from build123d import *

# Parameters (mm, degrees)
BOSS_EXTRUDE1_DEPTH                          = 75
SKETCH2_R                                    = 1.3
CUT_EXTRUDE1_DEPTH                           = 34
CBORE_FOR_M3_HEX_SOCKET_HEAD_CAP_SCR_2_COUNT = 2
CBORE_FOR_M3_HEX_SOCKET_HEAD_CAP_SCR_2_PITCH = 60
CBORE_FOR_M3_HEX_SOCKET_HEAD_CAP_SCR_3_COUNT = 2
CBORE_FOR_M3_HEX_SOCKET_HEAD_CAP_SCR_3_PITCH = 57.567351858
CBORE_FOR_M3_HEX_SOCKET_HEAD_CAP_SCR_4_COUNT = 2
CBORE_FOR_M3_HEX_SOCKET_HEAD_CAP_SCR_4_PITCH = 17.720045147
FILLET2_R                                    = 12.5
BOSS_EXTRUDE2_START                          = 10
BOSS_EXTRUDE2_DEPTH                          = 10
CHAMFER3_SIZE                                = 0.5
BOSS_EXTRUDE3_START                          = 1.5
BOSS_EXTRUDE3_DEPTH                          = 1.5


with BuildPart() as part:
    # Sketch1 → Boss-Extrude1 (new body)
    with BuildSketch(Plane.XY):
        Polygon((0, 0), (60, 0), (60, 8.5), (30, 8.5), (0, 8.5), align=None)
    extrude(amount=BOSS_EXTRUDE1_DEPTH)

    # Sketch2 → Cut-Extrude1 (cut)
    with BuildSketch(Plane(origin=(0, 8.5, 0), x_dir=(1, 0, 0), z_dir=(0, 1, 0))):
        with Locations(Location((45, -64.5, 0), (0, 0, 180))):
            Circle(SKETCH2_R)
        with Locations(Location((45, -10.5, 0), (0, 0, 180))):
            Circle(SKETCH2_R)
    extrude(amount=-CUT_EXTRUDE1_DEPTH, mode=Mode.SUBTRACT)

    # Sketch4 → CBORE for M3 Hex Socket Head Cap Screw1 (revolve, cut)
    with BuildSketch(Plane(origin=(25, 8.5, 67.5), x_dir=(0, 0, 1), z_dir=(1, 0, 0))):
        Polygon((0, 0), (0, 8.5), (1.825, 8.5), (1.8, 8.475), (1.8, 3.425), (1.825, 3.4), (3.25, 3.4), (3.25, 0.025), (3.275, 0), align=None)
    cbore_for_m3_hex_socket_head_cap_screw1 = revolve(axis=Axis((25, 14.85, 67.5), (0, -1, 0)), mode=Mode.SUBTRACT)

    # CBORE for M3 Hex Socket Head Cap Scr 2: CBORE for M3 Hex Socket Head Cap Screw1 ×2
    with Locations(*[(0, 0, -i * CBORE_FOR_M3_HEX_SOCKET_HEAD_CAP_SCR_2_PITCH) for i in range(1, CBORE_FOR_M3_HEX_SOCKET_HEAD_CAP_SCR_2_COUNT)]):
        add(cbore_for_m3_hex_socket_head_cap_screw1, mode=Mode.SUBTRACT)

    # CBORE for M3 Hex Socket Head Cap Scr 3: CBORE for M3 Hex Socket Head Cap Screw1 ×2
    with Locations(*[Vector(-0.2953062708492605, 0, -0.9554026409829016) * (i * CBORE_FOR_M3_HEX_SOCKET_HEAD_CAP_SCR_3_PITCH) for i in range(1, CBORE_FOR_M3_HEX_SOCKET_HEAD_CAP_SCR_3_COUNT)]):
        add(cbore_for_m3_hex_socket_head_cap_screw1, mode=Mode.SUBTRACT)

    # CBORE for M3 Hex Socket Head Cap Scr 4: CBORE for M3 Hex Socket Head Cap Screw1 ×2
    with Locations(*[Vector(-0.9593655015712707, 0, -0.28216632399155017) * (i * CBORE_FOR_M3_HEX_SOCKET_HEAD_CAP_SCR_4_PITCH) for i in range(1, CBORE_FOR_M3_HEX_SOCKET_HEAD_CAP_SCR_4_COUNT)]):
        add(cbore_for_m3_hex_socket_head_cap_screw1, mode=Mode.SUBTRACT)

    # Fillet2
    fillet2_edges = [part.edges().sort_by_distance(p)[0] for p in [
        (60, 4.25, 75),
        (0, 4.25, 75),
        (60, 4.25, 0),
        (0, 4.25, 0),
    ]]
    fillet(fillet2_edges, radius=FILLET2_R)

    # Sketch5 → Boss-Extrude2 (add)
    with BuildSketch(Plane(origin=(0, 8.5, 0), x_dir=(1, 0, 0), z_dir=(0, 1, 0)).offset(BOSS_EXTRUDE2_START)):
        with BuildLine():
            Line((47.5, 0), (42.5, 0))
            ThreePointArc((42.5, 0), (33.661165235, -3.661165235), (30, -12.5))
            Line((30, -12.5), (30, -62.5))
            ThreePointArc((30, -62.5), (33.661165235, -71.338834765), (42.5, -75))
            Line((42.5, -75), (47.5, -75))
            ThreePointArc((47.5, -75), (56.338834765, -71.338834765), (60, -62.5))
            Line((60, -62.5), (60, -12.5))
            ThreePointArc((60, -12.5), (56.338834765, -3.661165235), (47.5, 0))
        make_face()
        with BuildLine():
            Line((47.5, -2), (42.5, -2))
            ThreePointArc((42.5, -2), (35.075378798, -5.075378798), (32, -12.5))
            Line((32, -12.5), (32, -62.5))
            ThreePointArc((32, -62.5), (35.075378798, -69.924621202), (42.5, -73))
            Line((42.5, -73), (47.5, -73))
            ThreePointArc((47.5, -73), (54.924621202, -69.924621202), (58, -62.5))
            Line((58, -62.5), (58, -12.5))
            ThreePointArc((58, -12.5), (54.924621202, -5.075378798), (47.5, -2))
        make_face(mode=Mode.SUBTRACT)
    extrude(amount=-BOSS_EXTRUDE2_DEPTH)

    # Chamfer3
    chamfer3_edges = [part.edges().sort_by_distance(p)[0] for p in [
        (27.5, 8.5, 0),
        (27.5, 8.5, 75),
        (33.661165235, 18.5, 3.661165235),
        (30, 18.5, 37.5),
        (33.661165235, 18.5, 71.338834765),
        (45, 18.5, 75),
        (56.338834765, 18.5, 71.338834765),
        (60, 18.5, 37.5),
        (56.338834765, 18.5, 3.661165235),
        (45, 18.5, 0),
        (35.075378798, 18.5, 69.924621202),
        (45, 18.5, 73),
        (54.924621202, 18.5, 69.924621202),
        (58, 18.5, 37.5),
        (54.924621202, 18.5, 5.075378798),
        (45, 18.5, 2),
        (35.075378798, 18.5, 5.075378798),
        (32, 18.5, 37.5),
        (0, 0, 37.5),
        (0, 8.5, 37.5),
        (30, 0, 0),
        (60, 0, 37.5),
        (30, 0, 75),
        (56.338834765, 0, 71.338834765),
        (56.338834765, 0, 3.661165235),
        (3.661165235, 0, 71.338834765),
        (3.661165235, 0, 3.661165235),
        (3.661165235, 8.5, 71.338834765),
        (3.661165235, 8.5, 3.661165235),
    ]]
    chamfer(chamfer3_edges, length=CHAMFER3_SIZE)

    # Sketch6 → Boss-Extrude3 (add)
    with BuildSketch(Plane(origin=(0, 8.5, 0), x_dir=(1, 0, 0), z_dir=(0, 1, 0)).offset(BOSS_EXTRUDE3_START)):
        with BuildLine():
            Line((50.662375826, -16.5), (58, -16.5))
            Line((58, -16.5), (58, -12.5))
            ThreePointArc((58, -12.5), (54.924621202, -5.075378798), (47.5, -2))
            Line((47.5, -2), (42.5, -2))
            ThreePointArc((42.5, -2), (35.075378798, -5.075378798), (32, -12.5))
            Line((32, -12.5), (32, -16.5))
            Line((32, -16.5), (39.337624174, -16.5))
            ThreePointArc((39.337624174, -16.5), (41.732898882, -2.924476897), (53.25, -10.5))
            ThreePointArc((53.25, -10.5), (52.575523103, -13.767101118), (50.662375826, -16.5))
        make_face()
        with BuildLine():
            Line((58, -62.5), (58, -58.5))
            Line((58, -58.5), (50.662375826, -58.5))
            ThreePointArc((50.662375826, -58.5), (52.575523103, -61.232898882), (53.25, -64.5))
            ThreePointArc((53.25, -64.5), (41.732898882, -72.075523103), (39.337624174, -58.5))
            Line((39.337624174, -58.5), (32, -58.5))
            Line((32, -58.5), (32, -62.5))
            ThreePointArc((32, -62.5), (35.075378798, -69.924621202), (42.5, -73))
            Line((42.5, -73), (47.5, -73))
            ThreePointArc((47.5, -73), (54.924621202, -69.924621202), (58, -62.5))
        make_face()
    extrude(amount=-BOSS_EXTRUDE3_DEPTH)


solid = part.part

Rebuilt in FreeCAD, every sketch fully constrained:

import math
import FreeCAD as App
import Part
import Sketcher

V = App.Vector
Q = App.Units.Quantity


def edges_at(feature, points):
    """Names of the edges that pass closest to the given points."""
    edges = feature.Shape.Edges
    near = lambda p: min(range(len(edges)), key=lambda i: edges[i].distToShape(Part.Vertex(*p))[0])
    return sorted({f"Edge{near(p) + 1}" for p in points})

doc = App.newDocument("Part")
body = doc.addObject("PartDesign::Body", "Body")

# Sketch on XY plane
sketch1 = body.newObject("Sketcher::SketchObject", "Sketch")
sketch1.AttachmentSupport = (doc.getObject("XY_Plane"), [""])
sketch1.MapMode = "FlatFace"
sketch1.addGeometry([
    Part.LineSegment(V(0, 0, 0), V(60, 0, 0)),
    Part.LineSegment(V(60, 0, 0), V(60, 8, 0)),
    Part.LineSegment(V(60, 8, 0), V(0, 8, 0)),
    Part.LineSegment(V(0, 8, 0), V(0, 0, 0)),
], False)
sketch1.addConstraint([
    Sketcher.Constraint("Coincident", 0, 2, 1, 1),
    Sketcher.Constraint("Coincident", 1, 2, 2, 1),
    Sketcher.Constraint("Coincident", 2, 2, 3, 1),
    Sketcher.Constraint("Coincident", 3, 2, 0, 1),
    Sketcher.Constraint("Horizontal", 0),
    Sketcher.Constraint("Vertical", 1),
    Sketcher.Constraint("Horizontal", 2),
    Sketcher.Constraint("Vertical", 3),
    Sketcher.Constraint("Coincident", 3, 2, -1, 1),
    Sketcher.Constraint("DistanceX", 0, 1, 0, 2, Q("60 mm")),
    Sketcher.Constraint("DistanceY", 1, 1, 1, 2, Q("8.5 mm")),
])
pad1 = body.newObject("PartDesign::Pad", "Pad")
pad1.Profile = sketch1
pad1.Length = 75

# Sketch on XZ plane
sketch2 = body.newObject("Sketcher::SketchObject", "Sketch001")
sketch2.AttachmentSupport = (doc.getObject("XZ_Plane"), [""])
sketch2.MapMode = "FlatFace"
sketch2.AttachmentOffset = App.Placement(V(0, 0, -8.5), App.Rotation())
sketch2.addGeometry([
    Part.Circle(V(45, 64.5, 0), V(0, 0, 1), 1.3),
    Part.Circle(V(45, 10.5, 0), V(0, 0, 1), 1.3),
], False)
sketch2.addConstraint([
    Sketcher.Constraint("Equal", 0, 1),
    Sketcher.Constraint("Vertical", 0, 3, 1, 3),
    Sketcher.Constraint("Diameter", 0, Q("2.6 mm")),
    Sketcher.Constraint("DistanceX", -1, 1, 0, 3, Q("45 mm")),
    Sketcher.Constraint("DistanceY", 1, 3, 0, 3, Q("54 mm")),
    Sketcher.Constraint("DistanceY", -1, 1, 0, 3, Q("64.5 mm")),
])
pocket1 = body.newObject("PartDesign::Pocket", "Pocket")
pocket1.Profile = sketch2
pocket1.Length = 34
pocket1.Reversed = True

# Sketch on YZ plane
sketch3 = body.newObject("Sketcher::SketchObject", "Sketch002")
sketch3.AttachmentSupport = (doc.getObject("YZ_Plane"), [""])
sketch3.MapMode = "FlatFace"
sketch3.AttachmentOffset = App.Placement(V(0, 0, 25), App.Rotation())
sketch3.addGeometry([
    Part.LineSegment(V(0, 67.5, 0), V(8.5, 67.5, 0)),  # 0
    Part.LineSegment(V(8.5, 67.5, 0), V(8.5, 70.775, 0)),  # 1
    Part.LineSegment(V(8.5, 70.775, 0), V(8.475, 70.75, 0)),  # 2
    Part.LineSegment(V(8.475, 70.75, 0), V(5.1, 70.75, 0)),  # 3
    Part.LineSegment(V(5.1, 70.75, 0), V(5.1, 69.325, 0)),  # 4
    Part.LineSegment(V(5.1, 69.325, 0), V(5.075, 69.3, 0)),  # 5
    Part.LineSegment(V(5.075, 69.3, 0), V(0.025, 69.3, 0)),  # 6
    Part.LineSegment(V(0.025, 69.3, 0), V(0, 69.325, 0)),  # 7
    Part.LineSegment(V(0, 69.325, 0), V(0, 67.5, 0)),  # 8
], False)
sketch3.addGeometry(Part.LineSegment(V(8.5, 67.5, 0), V(0, 67.5, 0)), True)  # axis
sketch3.addConstraint([
    Sketcher.Constraint("Coincident", 0, 2, 1, 1),
    Sketcher.Constraint("Coincident", 1, 2, 2, 1),
    Sketcher.Constraint("Coincident", 2, 2, 3, 1),
    Sketcher.Constraint("Coincident", 3, 2, 4, 1),
    Sketcher.Constraint("Coincident", 4, 2, 5, 1),
    Sketcher.Constraint("Coincident", 5, 2, 6, 1),
    Sketcher.Constraint("Coincident", 6, 2, 7, 1),
    Sketcher.Constraint("Coincident", 7, 2, 8, 1),
    Sketcher.Constraint("Coincident", 8, 2, 0, 1),
    Sketcher.Constraint("Horizontal", 0),
    Sketcher.Constraint("Vertical", 1),
    Sketcher.Constraint("Horizontal", 3),
    Sketcher.Constraint("Vertical", 4),
    Sketcher.Constraint("Horizontal", 6),
    Sketcher.Constraint("Vertical", 8),
    Sketcher.Constraint("Horizontal", 9),
    Sketcher.Constraint("Coincident", 9, 1, 0, 2),
    Sketcher.Constraint("PointOnObject", 7, 2, -2),
    Sketcher.Constraint("PointOnObject", 9, 2, -2),
    Sketcher.Constraint("Parallel", 2, 5),
    Sketcher.Constraint("Perpendicular", 5, 7),
    Sketcher.Constraint("Horizontal", 4, 2, 7, 2),
    Sketcher.Constraint("Equal", 2, 5),
    Sketcher.Constraint("Equal", 5, 7),
    Sketcher.Constraint("DistanceX", 0, 1, 0, 2, Q("8.5 mm")),
    Sketcher.Constraint("DistanceX", 6, 2, 6, 1, Q("5.05 mm")),
    Sketcher.Constraint("DistanceY", -1, 1, 0, 2, Q("67.5 mm")),
    Sketcher.Constraint("DistanceX", -1, 1, 3, 2, Q("5.1 mm")),
    Sketcher.Constraint("DistanceY", -1, 1, 5, 2, Q("69.3 mm")),
    Sketcher.Constraint("DistanceY", 1, 1, 1, 2, Q("3.275 mm")),
])
groove = body.newObject("PartDesign::Groove", "Groove")
groove.Profile = sketch3
groove.ReferenceAxis = (sketch3, ["Axis0"])
groove.Angle = 360
doc.recompute()

linearpattern = body.newObject("PartDesign::LinearPattern", "LinearPattern")
linearpattern.Originals = [groove]
linearpattern.Direction = (doc.getObject("Z_Axis"), [""])
linearpattern.Mode = "offset"
linearpattern.Offset = 60
linearpattern.Occurrences = 2
linearpattern.Reversed = True
body.Tip = linearpattern
doc.recompute()

datumline = body.newObject("PartDesign::Line", "DatumLine")
datumline.Placement = App.Placement(V(0, 0, 0), App.Rotation(V(0, 0, 1), V(-0.295306271, 0, -0.955402641)))
linearpattern2 = body.newObject("PartDesign::LinearPattern", "LinearPattern001")
linearpattern2.Originals = [groove]
linearpattern2.Direction = (datumline, [""])
linearpattern2.Mode = "offset"
linearpattern2.Offset = 57.567352
linearpattern2.Occurrences = 2
body.Tip = linearpattern2
doc.recompute()

datumline2 = body.newObject("PartDesign::Line", "DatumLine001")
datumline2.Placement = App.Placement(V(0, 0, 0), App.Rotation(V(0, 0, 1), V(-0.959365502, 0, -0.282166324)))
linearpattern3 = body.newObject("PartDesign::LinearPattern", "LinearPattern002")
linearpattern3.Originals = [groove]
linearpattern3.Direction = (datumline2, [""])
linearpattern3.Mode = "offset"
linearpattern3.Offset = 17.720045
linearpattern3.Occurrences = 2
body.Tip = linearpattern3
doc.recompute()

fillet = body.newObject("PartDesign::Fillet", "Fillet")
fillet.Base = (linearpattern3, edges_at(linearpattern3, [
    (60, 4.25, 75),
    (0, 4.25, 75),
    (60, 4.25, 0),
    (0, 4.25, 0),
]))
fillet.Radius = 12.5

# Sketch on XZ plane
sketch4 = body.newObject("Sketcher::SketchObject", "Sketch003")
sketch4.AttachmentSupport = (doc.getObject("XZ_Plane"), [""])
sketch4.MapMode = "FlatFace"
sketch4.AttachmentOffset = App.Placement(V(0, 0, -18.5), App.Rotation())
sketch4.addGeometry([
    Part.LineSegment(V(48, 0, 0), V(42, 0, 0)),  # 0
    Part.ArcOfCircle(Part.Circle(V(42, 12, 0), V(0, 0, 1), 12), math.radians(180), math.radians(270)),  # 1
    Part.LineSegment(V(30, 12, 0), V(30, 62, 0)),  # 2
    Part.ArcOfCircle(Part.Circle(V(42, 63, 0), V(0, 0, 1), 12), math.radians(90), math.radians(180)),  # 3
    Part.LineSegment(V(42, 75, 0), V(48, 75, 0)),  # 4
    Part.ArcOfCircle(Part.Circle(V(48, 63, 0), V(0, 0, 1), 12), math.radians(0), math.radians(90)),  # 5
    Part.LineSegment(V(60, 62, 0), V(60, 12, 0)),  # 6
    Part.ArcOfCircle(Part.Circle(V(48, 12, 0), V(0, 0, 1), 12), math.radians(-90), math.radians(0)),  # 7
    Part.LineSegment(V(42, 2, 0), V(48, 2, 0)),  # 8
    Part.ArcOfCircle(Part.Circle(V(47, 13, 0), V(0, 0, 1), 11), math.radians(-90), math.radians(0)),  # 9
    Part.LineSegment(V(58, 12, 0), V(58, 62, 0)),  # 10
    Part.ArcOfCircle(Part.Circle(V(47, 62, 0), V(0, 0, 1), 11), math.radians(0), math.radians(90)),  # 11
    Part.LineSegment(V(48, 73, 0), V(42, 73, 0)),  # 12
    Part.ArcOfCircle(Part.Circle(V(43, 62, 0), V(0, 0, 1), 11), math.radians(90), math.radians(180)),  # 13
    Part.LineSegment(V(32, 62, 0), V(32, 12, 0)),  # 14
    Part.ArcOfCircle(Part.Circle(V(43, 13, 0), V(0, 0, 1), 11), math.radians(-180), math.radians(-90)),  # 15
], False)
sketch4.addConstraint([
    Sketcher.Constraint("Tangent", 0, 2, 1, 2),
    Sketcher.Constraint("Tangent", 1, 1, 2, 1),
    Sketcher.Constraint("Tangent", 2, 2, 3, 2),
    Sketcher.Constraint("Tangent", 3, 1, 4, 1),
    Sketcher.Constraint("Tangent", 4, 2, 5, 2),
    Sketcher.Constraint("Tangent", 5, 1, 6, 1),
    Sketcher.Constraint("Tangent", 6, 2, 7, 2),
    Sketcher.Constraint("Tangent", 7, 1, 0, 1),
    Sketcher.Constraint("Tangent", 8, 2, 9, 1),
    Sketcher.Constraint("Tangent", 9, 2, 10, 1),
    Sketcher.Constraint("Tangent", 10, 2, 11, 1),
    Sketcher.Constraint("Tangent", 11, 2, 12, 1),
    Sketcher.Constraint("Tangent", 12, 2, 13, 1),
    Sketcher.Constraint("Tangent", 13, 2, 14, 1),
    Sketcher.Constraint("Tangent", 14, 2, 15, 1),
    Sketcher.Constraint("Tangent", 15, 2, 8, 1),
    Sketcher.Constraint("Horizontal", 0),
    Sketcher.Constraint("Vertical", 2),
    Sketcher.Constraint("Horizontal", 4),
    Sketcher.Constraint("Vertical", 6),
    Sketcher.Constraint("Horizontal", 8),
    Sketcher.Constraint("Vertical", 10),
    Sketcher.Constraint("Horizontal", 12),
    Sketcher.Constraint("Vertical", 14),
    Sketcher.Constraint("Coincident", 9, 3, 7, 3),
    Sketcher.Constraint("Coincident", 11, 3, 5, 3),
    Sketcher.Constraint("Coincident", 13, 3, 3, 3),
    Sketcher.Constraint("Equal", 1, 3),
    Sketcher.Constraint("Equal", 3, 5),
    Sketcher.Constraint("Equal", 5, 7),
    Sketcher.Constraint("Equal", 13, 15),
    Sketcher.Constraint("PointOnObject", 0, 2, -1),
    Sketcher.Constraint("Radius", 1, Q("12.5 mm")),
    Sketcher.Constraint("Radius", 9, Q("10.5 mm")),
    Sketcher.Constraint("DistanceX", 0, 2, 0, 1, Q("5 mm")),
    Sketcher.Constraint("DistanceY", 2, 1, 2, 2, Q("50 mm")),
    Sketcher.Constraint("DistanceX", -1, 1, 1, 1, Q("30 mm")),
])
pad2 = body.newObject("PartDesign::Pad", "Pad001")
pad2.Profile = sketch4
pad2.Length = 10
doc.recompute()

chamfer = body.newObject("PartDesign::Chamfer", "Chamfer")
chamfer.Base = (pad2, edges_at(pad2, [
    (27.5, 8.5, 0),
    (27.5, 8.5, 75),
    (33.661, 18.5, 3.661),
    (30, 18.5, 37.5),
    (33.661, 18.5, 71.339),
    (45, 18.5, 75),
    (56.339, 18.5, 71.339),
    (60, 18.5, 37.5),
    (56.339, 18.5, 3.661),
    (45, 18.5, 0),
    (35.075, 18.5, 69.925),
    (45, 18.5, 73),
    (54.925, 18.5, 69.925),
    (58, 18.5, 37.5),
    (54.925, 18.5, 5.075),
    (45, 18.5, 2),
    (35.075, 18.5, 5.075),
    (32, 18.5, 37.5),
    (0, 0, 37.5),
    (0, 8.5, 37.5),
    (30, 0, 0),
    (60, 0, 37.5),
    (30, 0, 75),
    (56.339, 0, 71.339),
    (56.339, 0, 3.661),
    (3.661, 0, 71.339),
    (3.661, 0, 3.661),
    (3.661, 8.5, 71.339),
    (3.661, 8.5, 3.661),
]))
chamfer.Size = 0.5

# Sketch on XZ plane
sketch5 = body.newObject("Sketcher::SketchObject", "Sketch004")
sketch5.AttachmentSupport = (doc.getObject("XZ_Plane"), [""])
sketch5.MapMode = "FlatFace"
sketch5.AttachmentOffset = App.Placement(V(0, 0, -10), App.Rotation())
sketch5.addGeometry([
    Part.LineSegment(V(50.7, 16.5, 0), V(58, 16.5, 0)),  # 0
    Part.LineSegment(V(58, 16.5, 0), V(58, 12.5, 0)),  # 1
    Part.ArcOfCircle(Part.Circle(V(47.5, 12.5, 0), V(0, 0, 1), 10.5), math.radians(-90), math.radians(0)),  # 2
    Part.LineSegment(V(47.5, 2, 0), V(42.5, 2, 0)),  # 3
    Part.ArcOfCircle(Part.Circle(V(42.5, 12.5, 0), V(0, 0, 1), 10.5), math.radians(-180), math.radians(-90)),  # 4
    Part.LineSegment(V(32, 12.5, 0), V(32, 16.5, 0)),  # 5
    Part.LineSegment(V(32, 16.5, 0), V(39.3, 16.5, 0)),  # 6
    Part.ArcOfCircle(Part.Circle(V(45, 10.5, 0), V(0, 0, 1), 8.2), math.radians(133), math.radians(360)),  # 7
    Part.ArcOfCircle(Part.Circle(V(45, 10.5, 0), V(0, 0, 1), 8.2), math.radians(0), math.radians(47)),  # 8
    Part.LineSegment(V(58, 62.5, 0), V(58, 58.5, 0)),  # 9
    Part.LineSegment(V(58, 58.5, 0), V(50.7, 58.5, 0)),  # 10
    Part.ArcOfCircle(Part.Circle(V(45, 64.5, 0), V(0, 0, 1), 8.2), math.radians(-47), math.radians(0)),  # 11
    Part.ArcOfCircle(Part.Circle(V(45, 64.5, 0), V(0, 0, 1), 8.2), math.radians(0), math.radians(227)),  # 12
    Part.LineSegment(V(39.3, 58.5, 0), V(32, 58.5, 0)),  # 13
    Part.LineSegment(V(32, 58.5, 0), V(32, 62.5, 0)),  # 14
    Part.ArcOfCircle(Part.Circle(V(42.5, 62.5, 0), V(0, 0, 1), 10.5), math.radians(90), math.radians(180)),  # 15
    Part.LineSegment(V(42.5, 73, 0), V(47.5, 73, 0)),  # 16
    Part.ArcOfCircle(Part.Circle(V(47.5, 62.5, 0), V(0, 0, 1), 10.5), math.radians(0), math.radians(90)),  # 17
], False)
sketch5.addConstraint([
    Sketcher.Constraint("Coincident", 0, 2, 1, 1),
    Sketcher.Constraint("Tangent", 1, 2, 2, 2),
    Sketcher.Constraint("Tangent", 2, 1, 3, 1),
    Sketcher.Constraint("Tangent", 3, 2, 4, 2),
    Sketcher.Constraint("Tangent", 4, 1, 5, 1),
    Sketcher.Constraint("Coincident", 5, 2, 6, 1),
    Sketcher.Constraint("Coincident", 6, 2, 7, 1),
    Sketcher.Constraint("Tangent", 7, 2, 8, 1),
    Sketcher.Constraint("Coincident", 8, 2, 0, 1),
    Sketcher.Constraint("Coincident", 9, 2, 10, 1),
    Sketcher.Constraint("Coincident", 10, 2, 11, 1),
    Sketcher.Constraint("Tangent", 11, 2, 12, 1),
    Sketcher.Constraint("Coincident", 12, 2, 13, 1),
    Sketcher.Constraint("Coincident", 13, 2, 14, 1),
    Sketcher.Constraint("Tangent", 14, 2, 15, 2),
    Sketcher.Constraint("Tangent", 15, 1, 16, 1),
    Sketcher.Constraint("Tangent", 16, 2, 17, 2),
    Sketcher.Constraint("Tangent", 17, 1, 9, 1),
    Sketcher.Constraint("Horizontal", 0),
    Sketcher.Constraint("Vertical", 1),
    Sketcher.Constraint("Horizontal", 3),
    Sketcher.Constraint("Vertical", 5),
    Sketcher.Constraint("Horizontal", 6),
    Sketcher.Constraint("Vertical", 9),
    Sketcher.Constraint("Horizontal", 10),
    Sketcher.Constraint("Horizontal", 13),
    Sketcher.Constraint("Vertical", 14),
    Sketcher.Constraint("Horizontal", 16),
    Sketcher.Constraint("Equal", 2, 4),
    Sketcher.Constraint("Equal", 7, 8),
    Sketcher.Constraint("Equal", 8, 11),
    Sketcher.Constraint("Equal", 11, 12),
    Sketcher.Constraint("Equal", 4, 15),
    Sketcher.Constraint("Equal", 15, 17),
    Sketcher.Constraint("Horizontal", 0, 2, 5, 2),
    Sketcher.Constraint("Horizontal", 8, 3, 7, 2),
    Sketcher.Constraint("Horizontal", 12, 3, 11, 2),
    Sketcher.Constraint("Horizontal", 10, 2, 12, 2),
    Sketcher.Constraint("Vertical", 8, 3, 11, 3),
    Sketcher.Constraint("Vertical", 4, 3, 15, 3),
    Sketcher.Constraint("Vertical", 2, 3, 17, 3),
    Sketcher.Constraint("Vertical", 8, 2, 10, 2),
    Sketcher.Constraint("Equal", 0, 6),
    Sketcher.Constraint("Equal", 5, 9),
    Sketcher.Constraint("Radius", 2, Q("10.5 mm")),
    Sketcher.Constraint("DistanceX", 3, 2, 3, 1, Q("5 mm")),
    Sketcher.Constraint("DistanceY", 1, 2, 1, 1, Q("4 mm")),
    Sketcher.Constraint("Radius", 7, Q("8.25 mm")),
    Sketcher.Constraint("DistanceX", -1, 1, 7, 3, Q("45 mm")),
    Sketcher.Constraint("DistanceY", -1, 1, 2, 1, Q("2 mm")),
    Sketcher.Constraint("DistanceY", -1, 1, 15, 1, Q("73 mm")),
    Sketcher.Constraint("DistanceY", 7, 3, 2, 3, Q("2 mm")),
])
pad3 = body.newObject("PartDesign::Pad", "Pad002")
pad3.Profile = sketch5
pad3.Length = 1.5

doc.recompute()
